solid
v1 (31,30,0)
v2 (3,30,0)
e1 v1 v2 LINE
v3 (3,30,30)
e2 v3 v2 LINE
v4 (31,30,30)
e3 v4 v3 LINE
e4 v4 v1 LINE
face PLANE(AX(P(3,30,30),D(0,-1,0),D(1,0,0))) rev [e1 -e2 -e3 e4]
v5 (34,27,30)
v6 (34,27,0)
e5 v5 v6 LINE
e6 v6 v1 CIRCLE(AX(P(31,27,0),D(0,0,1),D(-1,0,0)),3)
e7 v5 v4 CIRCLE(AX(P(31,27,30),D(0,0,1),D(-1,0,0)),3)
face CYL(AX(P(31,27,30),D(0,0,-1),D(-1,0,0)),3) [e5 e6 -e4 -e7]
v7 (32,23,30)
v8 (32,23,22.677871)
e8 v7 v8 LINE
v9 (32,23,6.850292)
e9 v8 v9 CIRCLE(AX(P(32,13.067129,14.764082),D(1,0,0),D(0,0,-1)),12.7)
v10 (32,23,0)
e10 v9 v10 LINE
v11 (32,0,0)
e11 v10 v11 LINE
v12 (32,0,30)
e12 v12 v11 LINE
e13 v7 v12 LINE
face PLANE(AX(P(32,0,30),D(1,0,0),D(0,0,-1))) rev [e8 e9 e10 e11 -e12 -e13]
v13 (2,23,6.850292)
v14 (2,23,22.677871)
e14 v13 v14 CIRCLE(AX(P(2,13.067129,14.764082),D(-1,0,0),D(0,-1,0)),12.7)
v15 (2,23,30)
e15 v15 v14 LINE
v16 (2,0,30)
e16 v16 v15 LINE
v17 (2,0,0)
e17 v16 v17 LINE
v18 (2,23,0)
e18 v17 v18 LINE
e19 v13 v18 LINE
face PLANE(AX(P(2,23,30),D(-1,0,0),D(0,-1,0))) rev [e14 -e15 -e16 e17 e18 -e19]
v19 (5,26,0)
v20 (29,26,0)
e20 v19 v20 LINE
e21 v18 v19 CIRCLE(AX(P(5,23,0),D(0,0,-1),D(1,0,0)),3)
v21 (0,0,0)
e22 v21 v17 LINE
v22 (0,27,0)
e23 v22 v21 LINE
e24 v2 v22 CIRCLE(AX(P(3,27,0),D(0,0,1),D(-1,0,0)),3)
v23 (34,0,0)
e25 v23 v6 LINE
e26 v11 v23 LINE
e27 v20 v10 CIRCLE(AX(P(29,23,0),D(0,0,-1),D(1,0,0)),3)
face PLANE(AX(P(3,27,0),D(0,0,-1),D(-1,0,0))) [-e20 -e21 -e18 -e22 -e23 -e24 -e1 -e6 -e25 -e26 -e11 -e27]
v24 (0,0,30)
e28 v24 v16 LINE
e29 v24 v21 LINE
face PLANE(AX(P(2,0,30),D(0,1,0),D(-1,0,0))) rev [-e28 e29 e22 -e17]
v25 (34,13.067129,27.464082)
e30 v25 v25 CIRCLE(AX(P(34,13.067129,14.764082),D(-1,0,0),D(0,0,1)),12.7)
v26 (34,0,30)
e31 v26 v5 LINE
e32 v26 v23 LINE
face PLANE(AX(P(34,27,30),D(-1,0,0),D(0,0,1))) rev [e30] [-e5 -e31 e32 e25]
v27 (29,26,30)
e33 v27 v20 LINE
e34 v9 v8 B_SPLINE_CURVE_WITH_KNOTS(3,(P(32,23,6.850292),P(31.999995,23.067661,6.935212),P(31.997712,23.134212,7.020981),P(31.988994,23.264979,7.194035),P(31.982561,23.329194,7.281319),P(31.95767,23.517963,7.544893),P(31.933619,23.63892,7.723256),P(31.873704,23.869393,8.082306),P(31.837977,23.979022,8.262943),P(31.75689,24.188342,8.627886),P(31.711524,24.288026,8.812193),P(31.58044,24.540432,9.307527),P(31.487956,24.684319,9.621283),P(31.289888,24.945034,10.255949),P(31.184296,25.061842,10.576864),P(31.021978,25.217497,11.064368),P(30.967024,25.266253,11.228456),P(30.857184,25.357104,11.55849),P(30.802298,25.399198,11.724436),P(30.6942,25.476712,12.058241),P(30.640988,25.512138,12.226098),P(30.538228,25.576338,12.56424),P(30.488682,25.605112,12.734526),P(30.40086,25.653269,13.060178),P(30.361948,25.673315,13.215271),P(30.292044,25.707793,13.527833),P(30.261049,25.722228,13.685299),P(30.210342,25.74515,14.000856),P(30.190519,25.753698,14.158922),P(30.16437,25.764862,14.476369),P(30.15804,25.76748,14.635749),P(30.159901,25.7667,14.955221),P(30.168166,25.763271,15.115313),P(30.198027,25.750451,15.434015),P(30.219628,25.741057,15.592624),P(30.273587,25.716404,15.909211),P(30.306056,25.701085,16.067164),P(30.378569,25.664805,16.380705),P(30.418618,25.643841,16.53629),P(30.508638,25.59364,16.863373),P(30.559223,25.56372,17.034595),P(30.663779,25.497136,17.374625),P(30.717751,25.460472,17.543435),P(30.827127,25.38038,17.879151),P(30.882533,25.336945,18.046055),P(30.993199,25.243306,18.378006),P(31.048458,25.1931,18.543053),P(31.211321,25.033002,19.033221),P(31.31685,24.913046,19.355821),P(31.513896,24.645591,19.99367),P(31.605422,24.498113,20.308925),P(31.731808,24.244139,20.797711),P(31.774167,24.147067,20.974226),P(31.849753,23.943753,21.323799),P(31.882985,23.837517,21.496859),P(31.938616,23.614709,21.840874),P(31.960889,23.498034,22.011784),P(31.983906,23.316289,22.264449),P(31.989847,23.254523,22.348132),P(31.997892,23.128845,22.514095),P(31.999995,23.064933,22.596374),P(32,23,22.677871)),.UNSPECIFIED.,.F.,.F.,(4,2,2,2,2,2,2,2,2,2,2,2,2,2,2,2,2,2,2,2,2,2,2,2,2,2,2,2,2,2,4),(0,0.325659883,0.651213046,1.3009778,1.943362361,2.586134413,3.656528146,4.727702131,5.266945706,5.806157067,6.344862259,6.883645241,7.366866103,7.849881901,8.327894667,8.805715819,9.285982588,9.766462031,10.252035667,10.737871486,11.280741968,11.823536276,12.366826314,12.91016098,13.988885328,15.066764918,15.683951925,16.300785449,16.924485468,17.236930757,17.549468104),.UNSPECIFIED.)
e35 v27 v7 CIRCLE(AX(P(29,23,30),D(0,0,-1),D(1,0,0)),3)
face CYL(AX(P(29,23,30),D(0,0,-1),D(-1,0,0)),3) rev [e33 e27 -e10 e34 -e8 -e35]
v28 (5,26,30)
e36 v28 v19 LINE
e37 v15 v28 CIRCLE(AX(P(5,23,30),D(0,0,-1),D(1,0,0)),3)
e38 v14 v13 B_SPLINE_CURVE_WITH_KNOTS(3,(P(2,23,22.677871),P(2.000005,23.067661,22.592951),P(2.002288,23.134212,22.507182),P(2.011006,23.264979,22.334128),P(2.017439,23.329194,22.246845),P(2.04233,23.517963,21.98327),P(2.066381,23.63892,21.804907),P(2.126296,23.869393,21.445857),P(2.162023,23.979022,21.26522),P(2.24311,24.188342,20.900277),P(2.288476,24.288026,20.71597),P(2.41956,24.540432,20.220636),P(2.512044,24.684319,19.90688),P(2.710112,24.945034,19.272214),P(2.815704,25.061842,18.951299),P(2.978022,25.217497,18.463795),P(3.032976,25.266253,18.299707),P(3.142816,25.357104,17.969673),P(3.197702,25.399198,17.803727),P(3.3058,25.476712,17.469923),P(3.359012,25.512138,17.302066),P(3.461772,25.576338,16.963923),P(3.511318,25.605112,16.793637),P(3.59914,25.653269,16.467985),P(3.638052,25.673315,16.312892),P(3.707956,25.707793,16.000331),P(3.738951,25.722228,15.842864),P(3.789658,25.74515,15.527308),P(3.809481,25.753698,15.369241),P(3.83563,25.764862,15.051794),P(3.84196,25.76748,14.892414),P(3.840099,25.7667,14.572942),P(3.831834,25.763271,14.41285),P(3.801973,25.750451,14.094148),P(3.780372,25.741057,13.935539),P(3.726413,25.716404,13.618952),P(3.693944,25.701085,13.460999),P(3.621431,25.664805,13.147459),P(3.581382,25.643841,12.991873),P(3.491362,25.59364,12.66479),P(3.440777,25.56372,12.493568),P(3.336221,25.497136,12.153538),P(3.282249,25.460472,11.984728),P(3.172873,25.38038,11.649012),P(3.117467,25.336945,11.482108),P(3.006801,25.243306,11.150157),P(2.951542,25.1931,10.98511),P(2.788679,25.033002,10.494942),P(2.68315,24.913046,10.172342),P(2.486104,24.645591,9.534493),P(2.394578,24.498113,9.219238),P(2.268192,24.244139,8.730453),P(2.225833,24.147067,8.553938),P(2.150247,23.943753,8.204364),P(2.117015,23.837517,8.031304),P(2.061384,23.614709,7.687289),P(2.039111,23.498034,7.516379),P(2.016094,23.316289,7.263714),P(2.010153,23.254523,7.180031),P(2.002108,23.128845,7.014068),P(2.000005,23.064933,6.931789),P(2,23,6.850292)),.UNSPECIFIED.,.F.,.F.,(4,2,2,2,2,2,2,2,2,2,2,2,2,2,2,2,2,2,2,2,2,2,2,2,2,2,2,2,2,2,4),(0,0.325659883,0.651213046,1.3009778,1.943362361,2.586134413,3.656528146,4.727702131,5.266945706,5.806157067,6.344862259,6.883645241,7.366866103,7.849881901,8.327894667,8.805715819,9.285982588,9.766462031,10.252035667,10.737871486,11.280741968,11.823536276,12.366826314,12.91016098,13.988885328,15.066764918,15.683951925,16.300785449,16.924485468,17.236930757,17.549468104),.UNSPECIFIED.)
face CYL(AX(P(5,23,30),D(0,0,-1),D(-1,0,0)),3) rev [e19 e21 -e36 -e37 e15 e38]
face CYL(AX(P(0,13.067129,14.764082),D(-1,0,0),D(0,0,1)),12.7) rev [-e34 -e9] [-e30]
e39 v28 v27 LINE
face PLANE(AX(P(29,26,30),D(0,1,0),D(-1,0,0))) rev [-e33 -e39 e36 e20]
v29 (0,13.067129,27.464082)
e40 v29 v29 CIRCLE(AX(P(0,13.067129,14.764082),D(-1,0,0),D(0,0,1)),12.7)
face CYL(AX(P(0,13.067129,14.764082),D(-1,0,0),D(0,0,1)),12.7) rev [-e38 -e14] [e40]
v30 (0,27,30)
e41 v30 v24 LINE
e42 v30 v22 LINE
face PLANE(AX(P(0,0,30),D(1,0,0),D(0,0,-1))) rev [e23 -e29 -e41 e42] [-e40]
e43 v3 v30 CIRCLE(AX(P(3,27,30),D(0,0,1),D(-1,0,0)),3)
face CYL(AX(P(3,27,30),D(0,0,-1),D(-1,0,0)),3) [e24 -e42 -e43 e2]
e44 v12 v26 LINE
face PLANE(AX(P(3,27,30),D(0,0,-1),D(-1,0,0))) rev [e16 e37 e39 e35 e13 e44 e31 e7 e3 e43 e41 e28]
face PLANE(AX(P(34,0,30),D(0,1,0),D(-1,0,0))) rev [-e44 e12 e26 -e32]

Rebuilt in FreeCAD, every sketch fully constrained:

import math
import FreeCAD as App
import Part
import Sketcher
from FreeCAD import Vector

doc = App.newDocument("Part")
params = doc.addObject("Spreadsheet::Sheet", "Params")
for row, (alias, value) in enumerate([
    ("sketch1_radius", "3 mm"),
    ("sketch1_width", "2 mm"),
    ("sketch1_width2", "24 mm"),
    ("sketch1_height", "27 mm"),
    ("sketch1_height2", "23 mm"),
    ("pad1_length", "30 mm"),
    ("sketch2_diameter", "25.4 mm"),
    ("hole_diameter", "25.4 mm"),
], start=1):
    params.set(f"A{row}", alias)
    params.set(f"B{row}", "=" + value)
    params.setAlias(f"B{row}", alias)

body = doc.addObject("PartDesign::Body", "Body")

# Sketch on XY plane
sketch1 = body.newObject("Sketcher::SketchObject", "Sketch")
sketch1.AttachmentSupport = (doc.getObject("XY_Plane"), [""])
sketch1.MapMode = "FlatFace"
sketch1.addGeometry([
    Part.LineSegment(Vector(0, 27, 0), Vector(0, 0, 0)),  # 0
    Part.LineSegment(Vector(0, 0, 0), Vector(2, 0, 0)),  # 1
    Part.LineSegment(Vector(2, 0, 0), Vector(2, 23, 0)),  # 2
    Part.ArcOfCircle(Part.Circle(Vector(5, 23, 0), Vector(0, 0, 1), 3), math.radians(90), math.radians(180)),  # 3
    Part.LineSegment(Vector(5, 26, 0), Vector(29, 26, 0)),  # 4
    Part.ArcOfCircle(Part.Circle(Vector(29, 23, 0), Vector(0, 0, 1), 3), math.radians(0), math.radians(90)),  # 5
    Part.LineSegment(Vector(32, 23, 0), Vector(32, 0, 0)),  # 6
    Part.LineSegment(Vector(32, 0, 0), Vector(34, 0, 0)),  # 7
    Part.LineSegment(Vector(34, 0, 0), Vector(34, 27, 0)),  # 8
    Part.ArcOfCircle(Part.Circle(Vector(31, 27, 0), Vector(0, 0, 1), 3), math.radians(0), math.radians(90)),  # 9
    Part.LineSegment(Vector(31, 30, 0), Vector(3, 30, 0)),  # 10
    Part.ArcOfCircle(Part.Circle(Vector(3, 27, 0), Vector(0, 0, 1), 3), math.radians(90), math.radians(180)),  # 11
], False)
sketch1.addConstraint([
    Sketcher.Constraint("Coincident", 0, 2, 1, 1),
    Sketcher.Constraint("Coincident", 1, 2, 2, 1),
    Sketcher.Constraint("Tangent", 2, 2, 3, 2),
    Sketcher.Constraint("Tangent", 3, 1, 4, 1),
    Sketcher.Constraint("Tangent", 4, 2, 5, 2),
    Sketcher.Constraint("Tangent", 5, 1, 6, 1),
    Sketcher.Constraint("Coincident", 6, 2, 7, 1),
    Sketcher.Constraint("Coincident", 7, 2, 8, 1),
    Sketcher.Constraint("Tangent", 8, 2, 9, 1),
    Sketcher.Constraint("Tangent", 9, 2, 10, 1),
    Sketcher.Constraint("Tangent", 10, 2, 11, 1),
    Sketcher.Constraint("Tangent", 11, 2, 0, 1),
    Sketcher.Constraint("Vertical", 0),
    Sketcher.Constraint("Horizontal", 1),
    Sketcher.Constraint("Vertical", 2),
    Sketcher.Constraint("Horizontal", 4),
    Sketcher.Constraint("Vertical", 6),
    Sketcher.Constraint("Horizontal", 7),
    Sketcher.Constraint("Vertical", 8),
    Sketcher.Constraint("Horizontal", 10),
    Sketcher.Constraint("Coincident", 0, 2, -1, 1),
    Sketcher.Constraint("Equal", 3, 5),
    Sketcher.Constraint("Equal", 5, 9),
    Sketcher.Constraint("Equal", 9, 11),
    Sketcher.Constraint("PointOnObject", 6, 2, -1),
    Sketcher.Constraint("Equal", 1, 7),
    Sketcher.Constraint("Radius", 3, 3.0),
    Sketcher.Constraint("DistanceX", 1, 1, 1, 2, 2.0),
    Sketcher.Constraint("DistanceX", 4, 1, 4, 2, 24.0),
    Sketcher.Constraint("DistanceY", 0, 2, 0, 1, 27.0),
    Sketcher.Constraint("DistanceY", 2, 1, 2, 2, 23.0),
])
sketch1.setExpression("Constraints[26]", "Params.sketch1_radius")
sketch1.setExpression("Constraints[27]", "Params.sketch1_width")
sketch1.setExpression("Constraints[28]", "Params.sketch1_width2")
sketch1.setExpression("Constraints[29]", "Params.sketch1_height")
sketch1.setExpression("Constraints[30]", "Params.sketch1_height2")
pad1 = body.newObject("PartDesign::Pad", "Pad")
pad1.Profile = sketch1
pad1.setExpression("Length", "Params.pad1_length")

# Sketch on YZ plane
sketch2 = body.newObject("Sketcher::SketchObject", "Sketch001")
sketch2.AttachmentSupport = (doc.getObject("YZ_Plane"), [""])
sketch2.MapMode = "FlatFace"
sketch2.addGeometry(Part.Circle(Vector(13.067129, 14.764082, 0), Vector(0, 0, 1), 12.7), False)
sketch2.addConstraint([
    Sketcher.Constraint("Diameter", 0, 25.4),
    Sketcher.Constraint("DistanceX", -1, 1, 0, 3, 13.067129),
    Sketcher.Constraint("DistanceY", -1, 1, 0, 3, 14.764082),
])
sketch2.setExpression("Constraints[0]", "Params.sketch2_diameter")
doc.recompute()
hole = body.newObject("PartDesign::Hole", "Hole")
hole.Profile = sketch2
hole.ThreadType = "None"
hole.setExpression("Diameter", "Params.hole_diameter")
hole.DepthType = "ThroughAll"
hole.Reversed = True

doc.recompute()
